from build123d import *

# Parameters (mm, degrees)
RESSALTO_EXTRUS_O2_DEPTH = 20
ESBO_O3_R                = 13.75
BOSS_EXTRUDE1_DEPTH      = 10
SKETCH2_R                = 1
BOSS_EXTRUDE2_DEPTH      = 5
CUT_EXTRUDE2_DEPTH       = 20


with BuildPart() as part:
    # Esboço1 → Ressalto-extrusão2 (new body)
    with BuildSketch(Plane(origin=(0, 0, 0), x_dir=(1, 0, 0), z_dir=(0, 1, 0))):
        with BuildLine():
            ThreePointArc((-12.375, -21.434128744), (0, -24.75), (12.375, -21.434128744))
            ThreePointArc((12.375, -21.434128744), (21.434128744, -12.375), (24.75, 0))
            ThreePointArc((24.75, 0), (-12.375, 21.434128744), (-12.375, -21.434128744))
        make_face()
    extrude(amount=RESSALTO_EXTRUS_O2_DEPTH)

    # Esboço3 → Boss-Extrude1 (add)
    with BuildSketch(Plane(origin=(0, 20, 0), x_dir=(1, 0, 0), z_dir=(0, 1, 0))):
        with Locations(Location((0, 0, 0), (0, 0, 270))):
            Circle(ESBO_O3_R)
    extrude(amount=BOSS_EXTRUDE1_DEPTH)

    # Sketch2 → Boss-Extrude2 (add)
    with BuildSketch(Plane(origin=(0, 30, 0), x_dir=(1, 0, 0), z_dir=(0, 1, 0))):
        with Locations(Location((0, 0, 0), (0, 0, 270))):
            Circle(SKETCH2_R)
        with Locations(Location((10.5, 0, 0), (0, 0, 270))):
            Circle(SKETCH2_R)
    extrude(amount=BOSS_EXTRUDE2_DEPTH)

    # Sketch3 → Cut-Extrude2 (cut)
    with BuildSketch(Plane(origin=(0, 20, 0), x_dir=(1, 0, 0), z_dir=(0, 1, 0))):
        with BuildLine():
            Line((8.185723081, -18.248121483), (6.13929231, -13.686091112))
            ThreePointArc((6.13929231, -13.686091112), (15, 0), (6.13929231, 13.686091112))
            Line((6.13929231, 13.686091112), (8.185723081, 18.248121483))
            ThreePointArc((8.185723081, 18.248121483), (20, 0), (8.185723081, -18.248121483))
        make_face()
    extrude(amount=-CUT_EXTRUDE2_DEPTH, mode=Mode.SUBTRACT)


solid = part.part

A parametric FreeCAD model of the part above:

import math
import FreeCAD as App
import Part
import Sketcher
Q = App.Units.Quantity

doc = App.newDocument("Part")
body = doc.addObject("PartDesign::Body", "Body")

# Sketch on XZ plane
sketch1 = body.newObject("Sketcher::SketchObject", "Sketch")
sketch1.AttachmentSupport = (doc.getObject("XZ_Plane"), [""])
sketch1.MapMode = "FlatFace"
sketch1.addGeometry(Part.ArcOfCircle(Part.Circle(App.Vector(0, 0, 0), App.Vector(0, 0, 1), 25), math.radians(60), math.radians(120)), False)
sketch1.addGeometry(Part.ArcOfCircle(Part.Circle(App.Vector(0, 0, 0), App.Vector(0, 0, 1), 25), math.radians(0), math.radians(60)), False)
sketch1.addGeometry(Part.ArcOfCircle(Part.Circle(App.Vector(0, 0, 0), App.Vector(0, 0, 1), 25), math.radians(120), math.radians(360)), False)
sketch1.addConstraint(Sketcher.Constraint("Tangent", 0, 1, 1, 2))
sketch1.addConstraint(Sketcher.Constraint("Tangent", 1, 1, 2, 2))
sketch1.addConstraint(Sketcher.Constraint("Tangent", 2, 1, 0, 2))
sketch1.addConstraint(Sketcher.Constraint("Coincident", 0, 3, -1, 1))
sketch1.addConstraint(Sketcher.Constraint("PointOnObject", 1, 1, -1))
sketch1.addConstraint(Sketcher.Constraint("Horizontal", 0, 1, 2, 1))
sketch1.addConstraint(Sketcher.Constraint("Radius", 0, 24.75))
sketch1.addConstraint(Sketcher.Constraint("DistanceX", 2, 1, 0, 1, 24.75))
pad1 = body.newObject("PartDesign::Pad", "Pad")
pad1.Profile = sketch1
pad1.Length = 20
pad1.Reversed = True

# Sketch on XZ plane
sketch2 = body.newObject("Sketcher::SketchObject", "Sketch001")
sketch2.AttachmentSupport = (doc.getObject("XZ_Plane"), [""])
sketch2.MapMode = "FlatFace"
sketch2.AttachmentOffset = App.Placement(App.Vector(0, 0, -20), App.Rotation())
sketch2.addGeometry(Part.Circle(App.Vector(0, 0, 0), App.Vector(0, 0, 1), 14), False)
sketch2.addConstraint(Sketcher.Constraint("Coincident", 0, 3, -1, 1))
sketch2.addConstraint(Sketcher.Constraint("Diameter", 0, 27.5))
pad2 = body.newObject("PartDesign::Pad", "Pad001")
pad2.Profile = sketch2
pad2.Length = 10
pad2.Reversed = True

# Sketch on XZ plane
sketch3 = body.newObject("Sketcher::SketchObject", "Sketch002")
sketch3.AttachmentSupport = (doc.getObject("XZ_Plane"), [""])
sketch3.MapMode = "FlatFace"
sketch3.AttachmentOffset = App.Placement(App.Vector(0, 0, -30), App.Rotation())
sketch3.addGeometry(Part.Circle(App.Vector(0, 0, 0), App.Vector(0, 0, 1), 1), False)
sketch3.addGeometry(Part.Circle(App.Vector(10.5, 0, 0), App.Vector(0, 0, 1), 1), False)
sketch3.addConstraint(Sketcher.Constraint("Coincident", 0, 3, -1, 1))
sketch3.addConstraint(Sketcher.Constraint("Equal", 0, 1))
sketch3.addConstraint(Sketcher.Constraint("PointOnObject", 1, 3, -1))
sketch3.addConstraint(Sketcher.Constraint("Diameter", 0, 2.0))
sketch3.addConstraint(Sketcher.Constraint("DistanceX", -1, 1, 1, 3, 10.5))
pad3 = body.newObject("PartDesign::Pad", "Pad002")
pad3.Profile = sketch3
pad3.Length = 5
pad3.Reversed = True

# Sketch on XZ plane
sketch4 = body.newObject("Sketcher::SketchObject", "Sketch003")
sketch4.AttachmentSupport = (doc.getObject("XZ_Plane"), [""])
sketch4.MapMode = "FlatFace"
sketch4.AttachmentOffset = App.Placement(App.Vector(0, 0, -20), App.Rotation())
sketch4.addGeometry(Part.LineSegment(App.Vector(6, 14, 0), App.Vector(8, 18, 0)), False)
sketch4.addGeometry(Part.ArcOfCircle(Part.Circle(App.Vector(0, 0, 0), App.Vector(0, 0, 1), 20), math.radians(-66), math.radians(66)), False)
sketch4.addGeometry(Part.LineSegment(App.Vector(8, -18, 0), App.Vector(6, -14, 0)), False)
sketch4.addGeometry(Part.ArcOfCircle(Part.Circle(App.Vector(0, 0, 0), App.Vector(0, 0, 1), 15), math.radians(-66), math.radians(66)), False)
sketch4.addConstraint(Sketcher.Constraint("Coincident", 0, 2, 1, 2))
sketch4.addConstraint(Sketcher.Constraint("Coincident", 1, 1, 2, 1))
sketch4.addConstraint(Sketcher.Constraint("Coincident", 2, 2, 3, 1))
sketch4.addConstraint(Sketcher.Constraint("Coincident", 3, 2, 0, 1))
sketch4.addConstraint(Sketcher.Constraint("Coincident", 1, 3, -1, 1))
sketch4.addConstraint(Sketcher.Constraint("Coincident", 3, 3, -1, 1))
sketch4.addConstraint(Sketcher.Constraint("Vertical", 0, 2, 1, 1))
sketch4.addConstraint(Sketcher.Constraint("Vertical", 2, 2, 3, 2))
sketch4.addConstraint(Sketcher.Constraint("Radius", 1, 20.0))
sketch4.addConstraint(Sketcher.Constraint("Radius", 3, 15.0))
sketch4.addConstraint(Sketcher.Constraint("Angle", 0, Q("65.84 deg")))
sketch4.addConstraint(Sketcher.Constraint("DistanceY", -1, 1, 0, 2, 18.248121))
pocket1 = body.newObject("PartDesign::Pocket", "Pocket")
pocket1.Profile = sketch4
pocket1.Length = 20
pocket1.Reversed = True

doc.recompute()
